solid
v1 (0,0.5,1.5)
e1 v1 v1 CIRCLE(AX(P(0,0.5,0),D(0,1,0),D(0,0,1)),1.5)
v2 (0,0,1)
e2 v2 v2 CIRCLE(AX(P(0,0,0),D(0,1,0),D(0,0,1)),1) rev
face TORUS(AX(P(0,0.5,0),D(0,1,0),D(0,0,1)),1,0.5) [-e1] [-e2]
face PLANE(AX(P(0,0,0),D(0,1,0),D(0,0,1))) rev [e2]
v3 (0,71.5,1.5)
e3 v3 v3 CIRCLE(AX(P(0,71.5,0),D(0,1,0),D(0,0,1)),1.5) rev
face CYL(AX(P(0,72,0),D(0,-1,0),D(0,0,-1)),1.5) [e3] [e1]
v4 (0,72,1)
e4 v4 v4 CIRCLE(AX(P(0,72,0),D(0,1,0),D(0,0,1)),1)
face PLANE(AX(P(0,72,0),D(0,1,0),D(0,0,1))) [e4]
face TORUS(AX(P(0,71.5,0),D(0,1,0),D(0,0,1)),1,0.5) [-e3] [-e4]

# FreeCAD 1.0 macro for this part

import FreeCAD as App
import Part
import Sketcher
Q = App.Units.Quantity


def edges_at(feature, points):
    """Names of the edges that pass closest to the given points."""
    edges = feature.Shape.Edges
    near = lambda p: min(range(len(edges)), key=lambda i: edges[i].distToShape(Part.Vertex(*p))[0])
    return sorted({f"Edge{near(p) + 1}" for p in points})

doc = App.newDocument("Part")
body = doc.addObject("PartDesign::Body", "Body")

# Sketch on XZ plane
sketch1 = doc.addObject("Sketcher::SketchObject", "Sketch")
body.addObject(sketch1)
sketch1.AttachmentSupport = (doc.XZ_Plane, [""])
sketch1.MapMode = "FlatFace"
sketch1.addGeometry(Part.Circle(App.Vector(0, 0, 0), App.Vector(0, 0, 1), 1.5), False)
sketch1.addConstraint([
    Sketcher.Constraint("Coincident", 0, 3, -1, 1),
    Sketcher.Constraint("Diameter", 0, Q("3 mm")),
])
pad1 = doc.addObject("PartDesign::Pad", "Pad")
body.addObject(pad1)
pad1.Profile = sketch1
pad1.Length = 72
pad1.Reversed = True
doc.recompute()

fillet = doc.addObject("PartDesign::Fillet", "Fillet")
body.addObject(fillet)
fillet.Base = (pad1, edges_at(pad1, [(0, 72, -1.5)]))
fillet.Radius = 0.5
doc.recompute()

fillet2 = doc.addObject("PartDesign::Fillet", "Fillet001")
body.addObject(fillet2)
fillet2.Base = (fillet, edges_at(fillet, [(0, 0, -1.5)]))
fillet2.Radius = 0.5

doc.recompute()
